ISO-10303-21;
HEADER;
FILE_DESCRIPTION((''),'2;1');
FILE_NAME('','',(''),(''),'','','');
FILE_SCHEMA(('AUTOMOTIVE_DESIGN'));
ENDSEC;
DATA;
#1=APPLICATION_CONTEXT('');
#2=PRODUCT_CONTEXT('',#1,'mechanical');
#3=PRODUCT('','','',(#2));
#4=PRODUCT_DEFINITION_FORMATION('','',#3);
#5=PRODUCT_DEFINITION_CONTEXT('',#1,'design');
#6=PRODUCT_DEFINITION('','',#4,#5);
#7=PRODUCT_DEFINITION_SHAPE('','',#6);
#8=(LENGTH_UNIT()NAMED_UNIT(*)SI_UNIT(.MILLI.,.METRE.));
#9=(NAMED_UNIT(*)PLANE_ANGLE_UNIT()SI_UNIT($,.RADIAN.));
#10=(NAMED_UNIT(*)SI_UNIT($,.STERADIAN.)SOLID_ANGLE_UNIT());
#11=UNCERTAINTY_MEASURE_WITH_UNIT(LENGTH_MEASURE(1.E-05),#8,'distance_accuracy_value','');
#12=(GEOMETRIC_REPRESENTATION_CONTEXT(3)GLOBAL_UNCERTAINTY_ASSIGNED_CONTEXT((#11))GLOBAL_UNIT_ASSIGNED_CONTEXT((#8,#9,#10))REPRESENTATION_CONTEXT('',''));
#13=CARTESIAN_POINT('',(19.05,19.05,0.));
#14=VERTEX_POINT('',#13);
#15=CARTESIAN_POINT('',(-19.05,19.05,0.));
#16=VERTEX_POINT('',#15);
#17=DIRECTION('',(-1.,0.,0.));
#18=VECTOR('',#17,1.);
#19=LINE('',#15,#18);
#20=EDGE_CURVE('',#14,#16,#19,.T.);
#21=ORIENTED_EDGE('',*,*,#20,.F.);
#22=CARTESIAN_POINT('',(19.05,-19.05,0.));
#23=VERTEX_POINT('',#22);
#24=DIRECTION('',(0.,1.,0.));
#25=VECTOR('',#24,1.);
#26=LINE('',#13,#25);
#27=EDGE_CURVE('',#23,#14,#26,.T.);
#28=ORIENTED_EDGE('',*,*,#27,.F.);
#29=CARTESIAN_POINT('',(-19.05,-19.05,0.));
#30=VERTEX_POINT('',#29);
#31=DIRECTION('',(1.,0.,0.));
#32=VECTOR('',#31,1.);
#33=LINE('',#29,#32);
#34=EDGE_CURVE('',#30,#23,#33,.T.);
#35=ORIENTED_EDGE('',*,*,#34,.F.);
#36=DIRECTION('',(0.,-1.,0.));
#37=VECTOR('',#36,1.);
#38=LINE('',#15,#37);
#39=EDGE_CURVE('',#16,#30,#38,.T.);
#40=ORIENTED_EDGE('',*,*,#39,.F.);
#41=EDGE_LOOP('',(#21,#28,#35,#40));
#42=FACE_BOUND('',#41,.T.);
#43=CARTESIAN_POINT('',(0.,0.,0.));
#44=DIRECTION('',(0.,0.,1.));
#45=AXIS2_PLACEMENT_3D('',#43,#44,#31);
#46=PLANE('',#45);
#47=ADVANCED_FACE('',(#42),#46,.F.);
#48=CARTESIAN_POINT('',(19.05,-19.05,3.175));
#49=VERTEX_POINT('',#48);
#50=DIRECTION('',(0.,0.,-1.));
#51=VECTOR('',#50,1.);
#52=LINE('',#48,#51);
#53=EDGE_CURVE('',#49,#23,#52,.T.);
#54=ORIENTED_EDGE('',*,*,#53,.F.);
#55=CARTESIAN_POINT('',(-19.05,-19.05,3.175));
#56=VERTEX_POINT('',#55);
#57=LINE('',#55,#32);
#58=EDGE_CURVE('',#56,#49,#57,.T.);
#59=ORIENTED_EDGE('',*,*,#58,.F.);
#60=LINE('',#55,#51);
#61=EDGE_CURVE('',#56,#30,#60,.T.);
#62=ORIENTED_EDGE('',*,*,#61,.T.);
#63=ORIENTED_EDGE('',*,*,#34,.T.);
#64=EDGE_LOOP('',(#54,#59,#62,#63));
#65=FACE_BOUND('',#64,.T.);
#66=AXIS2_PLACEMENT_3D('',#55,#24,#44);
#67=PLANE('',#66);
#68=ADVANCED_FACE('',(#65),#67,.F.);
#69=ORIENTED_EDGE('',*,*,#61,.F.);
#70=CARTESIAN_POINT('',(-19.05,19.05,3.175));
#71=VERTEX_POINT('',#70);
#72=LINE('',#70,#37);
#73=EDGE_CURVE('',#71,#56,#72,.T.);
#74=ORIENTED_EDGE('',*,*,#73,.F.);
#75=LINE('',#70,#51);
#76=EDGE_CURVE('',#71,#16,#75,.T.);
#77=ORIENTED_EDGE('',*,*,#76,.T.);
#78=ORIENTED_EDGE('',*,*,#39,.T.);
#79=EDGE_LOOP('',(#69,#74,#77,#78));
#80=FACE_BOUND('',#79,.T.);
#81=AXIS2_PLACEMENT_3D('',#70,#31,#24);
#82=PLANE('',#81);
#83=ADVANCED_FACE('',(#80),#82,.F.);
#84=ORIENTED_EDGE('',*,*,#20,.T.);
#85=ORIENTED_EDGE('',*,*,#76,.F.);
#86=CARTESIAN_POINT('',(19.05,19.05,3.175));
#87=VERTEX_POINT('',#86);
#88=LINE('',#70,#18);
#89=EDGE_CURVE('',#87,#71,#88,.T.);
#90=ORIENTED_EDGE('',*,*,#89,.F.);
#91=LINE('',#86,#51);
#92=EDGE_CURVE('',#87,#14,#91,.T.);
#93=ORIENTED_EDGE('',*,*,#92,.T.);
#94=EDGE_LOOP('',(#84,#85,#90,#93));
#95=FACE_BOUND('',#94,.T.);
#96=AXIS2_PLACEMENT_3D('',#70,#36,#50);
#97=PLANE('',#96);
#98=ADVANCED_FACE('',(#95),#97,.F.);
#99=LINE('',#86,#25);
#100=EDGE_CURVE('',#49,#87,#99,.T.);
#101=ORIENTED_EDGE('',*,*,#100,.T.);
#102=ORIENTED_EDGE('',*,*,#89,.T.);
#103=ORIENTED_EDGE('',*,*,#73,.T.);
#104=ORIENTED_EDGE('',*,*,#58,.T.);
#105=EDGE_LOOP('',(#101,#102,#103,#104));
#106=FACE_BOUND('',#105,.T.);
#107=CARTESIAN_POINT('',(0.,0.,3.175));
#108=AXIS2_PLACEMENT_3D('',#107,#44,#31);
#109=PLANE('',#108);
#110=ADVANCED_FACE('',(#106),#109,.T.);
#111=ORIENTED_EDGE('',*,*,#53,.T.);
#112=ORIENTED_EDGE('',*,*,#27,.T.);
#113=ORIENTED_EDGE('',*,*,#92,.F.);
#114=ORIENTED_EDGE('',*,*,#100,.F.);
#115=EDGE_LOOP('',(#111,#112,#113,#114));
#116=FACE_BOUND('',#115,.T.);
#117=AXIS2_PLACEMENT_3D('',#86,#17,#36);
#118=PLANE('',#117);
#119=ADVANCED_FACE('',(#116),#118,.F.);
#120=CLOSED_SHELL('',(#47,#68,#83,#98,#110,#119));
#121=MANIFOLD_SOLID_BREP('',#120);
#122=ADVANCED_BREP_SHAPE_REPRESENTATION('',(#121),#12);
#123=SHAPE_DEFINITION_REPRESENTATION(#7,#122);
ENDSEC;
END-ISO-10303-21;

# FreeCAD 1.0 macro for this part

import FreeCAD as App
import Part
import Sketcher
Q = App.Units.Quantity


def add_polygon(sketch, points):
    """Adds a closed chain of lines whose ends are joined by coincident constraints."""
    first, n = sketch.GeometryCount, len(points)
    for a, b in zip(points, points[1:] + points[:1]):
        sketch.addGeometry(Part.LineSegment(App.Vector(*a, 0), App.Vector(*b, 0)), False)
    for i in range(n):
        sketch.addConstraint(Sketcher.Constraint("Coincident", first + i, 2, first + (i + 1) % n, 1))

doc = App.newDocument("Part")
params = doc.addObject("Spreadsheet::Sheet", "Params")
for row, (alias, value) in enumerate([
    ("sketch1_width", "1.5 in"),
    ("pad1_length", "0.125 in"),
], start=1):
    params.set(f"A{row}", alias)
    params.set(f"B{row}", "=" + value)
    params.setAlias(f"B{row}", alias)

body = doc.addObject("PartDesign::Body", "Body")

sketch1 = body.newObject("Sketcher::SketchObject", "Sketch")
sketch1.AttachmentSupport = (doc.getObject("XY_Plane"), [""])
sketch1.MapMode = "FlatFace"
add_polygon(sketch1, [(-19, 19), (-19, -19), (19, -19), (19, 19)])
sketch1.addConstraint(Sketcher.Constraint("Vertical", 0))
sketch1.addConstraint(Sketcher.Constraint("Horizontal", 1))
sketch1.addConstraint(Sketcher.Constraint("Vertical", 2))
sketch1.addConstraint(Sketcher.Constraint("Horizontal", 3))
sketch1.addConstraint(Sketcher.Constraint("Symmetric", 0, 2, 2, 2, -1, 1))
sketch1.addConstraint(Sketcher.Constraint("Equal", 3, 0))
sketch1.addConstraint(Sketcher.Constraint("DistanceX", 1, 1, 1, 2, Q("1.5 in")))
sketch1.setExpression("Constraints[10]", "Params.sketch1_width")
pad1 = body.newObject("PartDesign::Pad", "Pad")
pad1.Profile = sketch1
pad1.setExpression("Length", "Params.pad1_length")

doc.recompute()
